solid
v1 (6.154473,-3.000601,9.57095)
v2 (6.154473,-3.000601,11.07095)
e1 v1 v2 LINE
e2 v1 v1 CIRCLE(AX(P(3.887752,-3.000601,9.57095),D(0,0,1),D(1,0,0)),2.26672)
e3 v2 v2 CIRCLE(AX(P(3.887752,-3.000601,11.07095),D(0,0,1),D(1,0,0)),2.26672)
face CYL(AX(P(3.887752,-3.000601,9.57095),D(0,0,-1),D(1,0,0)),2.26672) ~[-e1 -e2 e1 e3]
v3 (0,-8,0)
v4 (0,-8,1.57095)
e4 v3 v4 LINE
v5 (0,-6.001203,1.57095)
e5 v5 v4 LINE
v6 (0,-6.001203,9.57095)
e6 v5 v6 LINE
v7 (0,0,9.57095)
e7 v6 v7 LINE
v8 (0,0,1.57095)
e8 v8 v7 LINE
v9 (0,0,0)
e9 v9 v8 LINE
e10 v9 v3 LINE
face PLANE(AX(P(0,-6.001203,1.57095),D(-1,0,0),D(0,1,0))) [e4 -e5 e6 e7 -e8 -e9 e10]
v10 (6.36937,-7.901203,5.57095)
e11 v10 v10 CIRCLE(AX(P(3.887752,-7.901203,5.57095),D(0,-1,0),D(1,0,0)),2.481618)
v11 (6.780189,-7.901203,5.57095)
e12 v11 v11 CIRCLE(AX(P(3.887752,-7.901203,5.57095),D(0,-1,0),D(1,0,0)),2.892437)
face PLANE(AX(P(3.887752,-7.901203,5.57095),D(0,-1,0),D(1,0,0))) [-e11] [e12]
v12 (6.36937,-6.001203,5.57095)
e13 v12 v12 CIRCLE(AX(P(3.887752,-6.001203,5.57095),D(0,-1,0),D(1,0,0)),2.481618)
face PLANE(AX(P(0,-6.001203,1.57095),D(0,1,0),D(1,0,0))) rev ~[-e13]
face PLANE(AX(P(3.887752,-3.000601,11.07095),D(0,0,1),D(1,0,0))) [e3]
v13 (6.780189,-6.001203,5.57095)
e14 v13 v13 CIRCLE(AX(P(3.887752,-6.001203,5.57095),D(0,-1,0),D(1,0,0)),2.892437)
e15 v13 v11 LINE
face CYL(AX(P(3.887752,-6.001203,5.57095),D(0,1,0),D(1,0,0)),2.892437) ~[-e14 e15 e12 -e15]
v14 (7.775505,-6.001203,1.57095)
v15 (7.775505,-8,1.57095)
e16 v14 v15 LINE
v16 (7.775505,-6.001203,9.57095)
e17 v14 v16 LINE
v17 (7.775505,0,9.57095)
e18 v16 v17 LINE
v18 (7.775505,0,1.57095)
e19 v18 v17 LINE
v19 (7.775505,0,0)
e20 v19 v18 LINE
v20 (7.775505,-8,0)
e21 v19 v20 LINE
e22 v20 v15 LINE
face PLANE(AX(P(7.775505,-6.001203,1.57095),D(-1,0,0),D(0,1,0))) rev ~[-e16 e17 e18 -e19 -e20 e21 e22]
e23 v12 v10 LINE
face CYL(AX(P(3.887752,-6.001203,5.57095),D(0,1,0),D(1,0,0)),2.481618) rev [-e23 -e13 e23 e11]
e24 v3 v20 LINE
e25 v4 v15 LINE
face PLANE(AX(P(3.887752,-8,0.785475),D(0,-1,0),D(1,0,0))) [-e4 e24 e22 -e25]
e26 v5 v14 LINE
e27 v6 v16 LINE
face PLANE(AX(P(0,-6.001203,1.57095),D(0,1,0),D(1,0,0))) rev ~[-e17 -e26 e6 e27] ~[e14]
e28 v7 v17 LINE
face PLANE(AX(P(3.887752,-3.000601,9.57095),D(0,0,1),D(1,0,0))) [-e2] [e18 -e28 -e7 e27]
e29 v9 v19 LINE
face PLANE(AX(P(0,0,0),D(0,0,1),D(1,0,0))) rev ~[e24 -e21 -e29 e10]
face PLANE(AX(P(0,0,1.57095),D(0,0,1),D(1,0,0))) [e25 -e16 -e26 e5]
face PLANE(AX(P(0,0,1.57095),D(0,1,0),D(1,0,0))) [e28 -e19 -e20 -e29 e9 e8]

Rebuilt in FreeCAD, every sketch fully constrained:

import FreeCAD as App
import Part
import Sketcher
from FreeCAD import Vector

doc = App.newDocument("Part")
body = doc.addObject("PartDesign::Body", "Body")

sketch1 = body.newObject("Sketcher::SketchObject", "Sketch")
sketch1.AttachmentSupport = (doc.getObject("XZ_Plane"), [""])
sketch1.MapMode = "FlatFace"
sketch1.addGeometry(Part.LineSegment(Vector(0, 1.57095, 0), Vector(0, 0, 0)), False)
sketch1.addGeometry(Part.LineSegment(Vector(0, 0, 0), Vector(7.775505, 0, 0)), False)
sketch1.addGeometry(Part.LineSegment(Vector(7.775505, 0, 0), Vector(7.775505, 1.57095, 0)), False)
sketch1.addGeometry(Part.LineSegment(Vector(7.775505, 1.57095, 0), Vector(0, 1.57095, 0)), False)
sketch1.addConstraint(Sketcher.Constraint("Coincident", 0, 2, 1, 1))
sketch1.addConstraint(Sketcher.Constraint("Coincident", 1, 2, 2, 1))
sketch1.addConstraint(Sketcher.Constraint("Coincident", 2, 2, 3, 1))
sketch1.addConstraint(Sketcher.Constraint("Coincident", 3, 2, 0, 1))
sketch1.addConstraint(Sketcher.Constraint("Vertical", 0))
sketch1.addConstraint(Sketcher.Constraint("Horizontal", 1))
sketch1.addConstraint(Sketcher.Constraint("Vertical", 2))
sketch1.addConstraint(Sketcher.Constraint("Horizontal", 3))
sketch1.addConstraint(Sketcher.Constraint("Coincident", 0, 2, -1, 1))
sketch1.addConstraint(Sketcher.Constraint("DistanceY", 0, 2, 0, 1, 1.57095))
sketch1.addConstraint(Sketcher.Constraint("DistanceX", 1, 1, 1, 2, 7.775505))
pad1 = body.newObject("PartDesign::Pad", "Pad")
pad1.Profile = sketch1
pad1.Length = 8

sketch2 = body.newObject("Sketcher::SketchObject", "Sketch001")
sketch2.AttachmentSupport = (doc.getObject("XY_Plane"), [""])
sketch2.MapMode = "FlatFace"
sketch2.AttachmentOffset = App.Placement(Vector(0, 0, 1.57095), App.Rotation())
sketch2.addGeometry(Part.LineSegment(Vector(0, 0, 0), Vector(0, -6.001203, 0)), False)
sketch2.addGeometry(Part.LineSegment(Vector(0, -6.001203, 0), Vector(7.775505, -6.001203, 0)), False)
sketch2.addGeometry(Part.LineSegment(Vector(7.775505, -6.001203, 0), Vector(7.775505, 0, 0)), False)
sketch2.addGeometry(Part.LineSegment(Vector(7.775505, 0, 0), Vector(0, 0, 0)), False)
sketch2.addConstraint(Sketcher.Constraint("Coincident", 0, 2, 1, 1))
sketch2.addConstraint(Sketcher.Constraint("Coincident", 1, 2, 2, 1))
sketch2.addConstraint(Sketcher.Constraint("Coincident", 2, 2, 3, 1))
sketch2.addConstraint(Sketcher.Constraint("Coincident", 3, 2, 0, 1))
sketch2.addConstraint(Sketcher.Constraint("Vertical", 0))
sketch2.addConstraint(Sketcher.Constraint("Horizontal", 1))
sketch2.addConstraint(Sketcher.Constraint("Vertical", 2))
sketch2.addConstraint(Sketcher.Constraint("Horizontal", 3))
sketch2.addConstraint(Sketcher.Constraint("Coincident", 3, 2, -1, 1))
sketch2.addConstraint(Sketcher.Constraint("DistanceX", 1, 1, 1, 2, 7.775505))
sketch2.addConstraint(Sketcher.Constraint("DistanceY", 0, 2, 0, 1, 6.001203))
pad2 = body.newObject("PartDesign::Pad", "Pad001")
pad2.Profile = sketch2
pad2.Length = 8

sketch3 = body.newObject("Sketcher::SketchObject", "Sketch002")
sketch3.AttachmentSupport = (doc.getObject("XZ_Plane"), [""])
sketch3.MapMode = "FlatFace"
sketch3.AttachmentOffset = App.Placement(Vector(0, 0, 6.001203), App.Rotation())
sketch3.addGeometry(Part.Circle(Vector(3.887752, 5.57095, 0), Vector(0, 0, 1), 2.892437), False)
sketch3.addGeometry(Part.Circle(Vector(3.887752, 5.57095, 0), Vector(0, 0, 1), 2.481618), False)
sketch3.addConstraint(Sketcher.Constraint("Coincident", 1, 3, 0, 3))
sketch3.addConstraint(Sketcher.Constraint("Diameter", 0, 5.784873))
sketch3.addConstraint(Sketcher.Constraint("Diameter", 1, 4.963236))
sketch3.addConstraint(Sketcher.Constraint("DistanceY", -1, 1, 0, 3, 5.57095))
sketch3.addConstraint(Sketcher.Constraint("DistanceX", -1, 1, 0, 3, 3.887752))
pad3 = body.newObject("PartDesign::Pad", "Pad002")
pad3.Profile = sketch3
pad3.Length = 1.9

sketch4 = body.newObject("Sketcher::SketchObject", "Sketch003")
sketch4.AttachmentSupport = (doc.getObject("XY_Plane"), [""])
sketch4.MapMode = "FlatFace"
sketch4.AttachmentOffset = App.Placement(Vector(0, 0, 9.57095), App.Rotation())
sketch4.addGeometry(Part.Circle(Vector(3.887752, -3.000601, 0), Vector(0, 0, 1), 2.26672), False)
sketch4.addConstraint(Sketcher.Constraint("Diameter", 0, 4.53344))
sketch4.addConstraint(Sketcher.Constraint("DistanceY", 0, 3, -1, 1, 3.000601))
sketch4.addConstraint(Sketcher.Constraint("DistanceX", -1, 1, 0, 3, 3.887752))
pad4 = body.newObject("PartDesign::Pad", "Pad003")
pad4.Profile = sketch4
pad4.Length = 1.5

doc.recompute()
